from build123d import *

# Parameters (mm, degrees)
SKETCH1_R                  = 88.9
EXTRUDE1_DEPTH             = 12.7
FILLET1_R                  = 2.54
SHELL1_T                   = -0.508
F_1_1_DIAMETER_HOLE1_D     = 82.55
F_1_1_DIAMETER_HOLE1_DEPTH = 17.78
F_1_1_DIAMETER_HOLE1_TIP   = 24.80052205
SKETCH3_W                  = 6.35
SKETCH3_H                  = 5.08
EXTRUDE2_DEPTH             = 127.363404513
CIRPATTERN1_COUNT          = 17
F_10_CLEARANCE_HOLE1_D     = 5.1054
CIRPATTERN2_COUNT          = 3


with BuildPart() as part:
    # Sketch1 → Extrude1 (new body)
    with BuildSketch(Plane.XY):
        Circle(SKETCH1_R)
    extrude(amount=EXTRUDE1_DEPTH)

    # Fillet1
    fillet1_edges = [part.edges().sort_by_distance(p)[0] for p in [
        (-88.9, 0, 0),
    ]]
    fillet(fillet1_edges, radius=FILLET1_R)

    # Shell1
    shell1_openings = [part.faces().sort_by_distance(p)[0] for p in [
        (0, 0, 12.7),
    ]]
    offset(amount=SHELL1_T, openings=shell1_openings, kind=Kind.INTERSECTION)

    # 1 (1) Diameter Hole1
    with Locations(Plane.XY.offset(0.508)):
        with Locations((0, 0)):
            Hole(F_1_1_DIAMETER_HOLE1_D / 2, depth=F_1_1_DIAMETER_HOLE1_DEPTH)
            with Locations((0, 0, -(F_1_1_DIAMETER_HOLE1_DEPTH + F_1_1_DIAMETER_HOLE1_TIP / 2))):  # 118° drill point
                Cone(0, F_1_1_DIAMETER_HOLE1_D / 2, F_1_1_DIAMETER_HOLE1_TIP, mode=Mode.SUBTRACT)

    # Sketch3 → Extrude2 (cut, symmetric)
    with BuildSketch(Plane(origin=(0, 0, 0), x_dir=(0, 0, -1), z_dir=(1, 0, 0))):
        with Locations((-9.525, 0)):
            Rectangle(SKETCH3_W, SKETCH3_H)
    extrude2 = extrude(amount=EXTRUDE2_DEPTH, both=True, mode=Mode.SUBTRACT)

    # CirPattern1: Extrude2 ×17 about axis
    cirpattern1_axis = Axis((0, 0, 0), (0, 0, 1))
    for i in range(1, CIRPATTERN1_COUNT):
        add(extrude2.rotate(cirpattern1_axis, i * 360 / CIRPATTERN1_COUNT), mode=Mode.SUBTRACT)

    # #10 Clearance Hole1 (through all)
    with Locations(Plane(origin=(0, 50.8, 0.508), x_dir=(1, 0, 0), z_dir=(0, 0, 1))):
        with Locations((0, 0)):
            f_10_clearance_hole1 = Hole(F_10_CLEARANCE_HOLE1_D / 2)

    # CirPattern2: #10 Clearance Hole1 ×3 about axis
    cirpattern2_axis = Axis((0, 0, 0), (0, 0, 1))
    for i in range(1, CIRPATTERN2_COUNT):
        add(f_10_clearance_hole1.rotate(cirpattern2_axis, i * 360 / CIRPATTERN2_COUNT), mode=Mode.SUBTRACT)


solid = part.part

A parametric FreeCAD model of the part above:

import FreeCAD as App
import Part
import Sketcher
Q = App.Units.Quantity


def edges_at(feature, points):
    """Names of the edges that pass closest to the given points."""
    edges = feature.Shape.Edges
    near = lambda p: min(range(len(edges)), key=lambda i: edges[i].distToShape(Part.Vertex(*p))[0])
    return sorted({f"Edge{near(p) + 1}" for p in points})


def faces_at(feature, points):
    """Names of the faces that lie closest to the given points."""
    faces = feature.Shape.Faces
    near = lambda p: min(range(len(faces)), key=lambda i: faces[i].distToShape(Part.Vertex(*p))[0])
    return sorted({f"Face{near(p) + 1}" for p in points})


def add_polygon(sketch, points):
    """Adds a closed chain of lines whose ends are joined by coincident constraints."""
    first, n = sketch.GeometryCount, len(points)
    for a, b in zip(points, points[1:] + points[:1]):
        sketch.addGeometry(Part.LineSegment(App.Vector(*a, 0), App.Vector(*b, 0)), False)
    for i in range(n):
        sketch.addConstraint(Sketcher.Constraint("Coincident", first + i, 2, first + (i + 1) % n, 1))

doc = App.newDocument("Part")
params = doc.addObject("Spreadsheet::Sheet", "Params")
for row, (alias, value) in enumerate([
    ("sketch1_diameter", "7 in"),
    ("pad1_length", "0.5 in"),
    ("fillet_radius", "0.1 in"),
    ("thickness_wall", "0.02 in"),
    ("sketch2_diameter", "3.25 in"),
    ("hole_diameter", "3.25 in"),
    ("hole_depth", "0.7 in"),
    ("sketch3_width", "0.2 in"),
    ("sketch3_height", "0.25 in"),
    ("pocket1_length", "254.726809 mm"),
    ("sketch4_diameter", "0.201 in"),
    ("hole2_diameter", "0.201 in"),
], start=1):
    params.set(f"A{row}", alias)
    params.set(f"B{row}", "=" + value)
    params.setAlias(f"B{row}", alias)

body = doc.addObject("PartDesign::Body", "Body")

# Sketch on XY plane
sketch1 = body.newObject("Sketcher::SketchObject", "Sketch")
sketch1.AttachmentSupport = (doc.getObject("XY_Plane"), [""])
sketch1.MapMode = "FlatFace"
sketch1.addGeometry(Part.Circle(App.Vector(0, 0, 0), App.Vector(0, 0, 1), 89), False)
sketch1.addConstraint(Sketcher.Constraint("Coincident", 0, 3, -1, 1))
sketch1.addConstraint(Sketcher.Constraint("Diameter", 0, Q("7 in")))
sketch1.setExpression("Constraints[1]", "Params.sketch1_diameter")
pad1 = body.newObject("PartDesign::Pad", "Pad")
pad1.Profile = sketch1
pad1.setExpression("Length", "Params.pad1_length")
doc.recompute()

fillet = body.newObject("PartDesign::Fillet", "Fillet")
fillet.Base = (pad1, edges_at(pad1, [(-88.9, 0, 0)]))
fillet.setExpression("Radius", "Params.fillet_radius")
doc.recompute()

thickness = body.newObject("PartDesign::Thickness", "Thickness")
thickness.Base = (fillet, faces_at(fillet, [(0, 0, 12.7)]))
thickness.setExpression("Value", "Params.thickness_wall")
thickness.Reversed = True
thickness.Join = "Intersection"

# Sketch on XY plane
sketch2 = body.newObject("Sketcher::SketchObject", "Sketch001")
sketch2.AttachmentSupport = (doc.getObject("XY_Plane"), [""])
sketch2.MapMode = "FlatFace"
sketch2.AttachmentOffset = App.Placement(App.Vector(0, 0, 0.02 * 25.4), App.Rotation())
sketch2.addGeometry(Part.Circle(App.Vector(0, 0, 0), App.Vector(0, 0, 1), 41), False)
sketch2.addConstraint(Sketcher.Constraint("Coincident", 0, 3, -1, 1))
sketch2.addConstraint(Sketcher.Constraint("Diameter", 0, Q("3.25 in")))
sketch2.setExpression("Constraints[1]", "Params.sketch2_diameter")
doc.recompute()
hole = body.newObject("PartDesign::Hole", "Hole")
hole.Profile = sketch2
hole.ThreadType = "None"
hole.setExpression("Diameter", "Params.hole_diameter")
hole.DepthType = "Dimension"
hole.setExpression("Depth", "Params.hole_depth")
hole.DrillPoint = "Angled"
hole.DrillPointAngle = 118

# Sketch on YZ plane
sketch3 = body.newObject("Sketcher::SketchObject", "Sketch002")
sketch3.AttachmentSupport = (doc.getObject("YZ_Plane"), [""])
sketch3.MapMode = "FlatFace"
add_polygon(sketch3, [(3, 13), (-3, 13), (-3, 6), (3, 6)])  # lines 0-3
sketch3.addConstraint(Sketcher.Constraint("Horizontal", 0))
sketch3.addConstraint(Sketcher.Constraint("Vertical", 1))
sketch3.addConstraint(Sketcher.Constraint("Horizontal", 2))
sketch3.addConstraint(Sketcher.Constraint("Vertical", 3))
sketch3.addConstraint(Sketcher.Constraint("DistanceX", 0, 2, 0, 1, Q("0.2 in")))
sketch3.addConstraint(Sketcher.Constraint("DistanceY", 1, 2, 1, 1, Q("0.25 in")))
sketch3.addConstraint(Sketcher.Constraint("DistanceX", 0, 2, -1, 1, Q("0.1 in")))
sketch3.addConstraint(Sketcher.Constraint("DistanceY", -1, 1, 0, 2, Q("0.5 in")))
sketch3.setExpression("Constraints[8]", "Params.sketch3_width")
sketch3.setExpression("Constraints[9]", "Params.sketch3_height")
pocket1 = body.newObject("PartDesign::Pocket", "Pocket")
pocket1.Profile = sketch3
pocket1.setExpression("Length", "Params.pocket1_length")
pocket1.Midplane = True
doc.recompute()

polarpattern = body.newObject("PartDesign::PolarPattern", "PolarPattern")
polarpattern.Originals = [pocket1]
polarpattern.Axis = (doc.getObject("Z_Axis"), [""])
polarpattern.Angle = 360
polarpattern.Occurrences = 17
body.Tip = polarpattern

# Sketch on XY plane
sketch4 = body.newObject("Sketcher::SketchObject", "Sketch003")
sketch4.AttachmentSupport = (doc.getObject("XY_Plane"), [""])
sketch4.MapMode = "FlatFace"
sketch4.AttachmentOffset = App.Placement(App.Vector(0, 0, 0.02 * 25.4), App.Rotation())
sketch4.addGeometry(Part.Circle(App.Vector(0, 50.8, 0), App.Vector(0, 0, 1), 2.6), False)
sketch4.addConstraint(Sketcher.Constraint("PointOnObject", 0, 3, -2))
sketch4.addConstraint(Sketcher.Constraint("Diameter", 0, Q("0.201 in")))
sketch4.addConstraint(Sketcher.Constraint("DistanceY", -1, 1, 0, 3, Q("2 in")))
sketch4.setExpression("Constraints[1]", "Params.sketch4_diameter")
doc.recompute()
hole2 = body.newObject("PartDesign::Hole", "Hole001")
hole2.Profile = sketch4
hole2.ThreadType = "None"
hole2.setExpression("Diameter", "Params.hole2_diameter")
hole2.DepthType = "ThroughAll"
doc.recompute()

polarpattern2 = body.newObject("PartDesign::PolarPattern", "PolarPattern001")
polarpattern2.Originals = [hole2]
polarpattern2.Axis = (doc.getObject("Z_Axis"), [""])
polarpattern2.Angle = 360
polarpattern2.Occurrences = 3
body.Tip = polarpattern2

doc.recompute()
